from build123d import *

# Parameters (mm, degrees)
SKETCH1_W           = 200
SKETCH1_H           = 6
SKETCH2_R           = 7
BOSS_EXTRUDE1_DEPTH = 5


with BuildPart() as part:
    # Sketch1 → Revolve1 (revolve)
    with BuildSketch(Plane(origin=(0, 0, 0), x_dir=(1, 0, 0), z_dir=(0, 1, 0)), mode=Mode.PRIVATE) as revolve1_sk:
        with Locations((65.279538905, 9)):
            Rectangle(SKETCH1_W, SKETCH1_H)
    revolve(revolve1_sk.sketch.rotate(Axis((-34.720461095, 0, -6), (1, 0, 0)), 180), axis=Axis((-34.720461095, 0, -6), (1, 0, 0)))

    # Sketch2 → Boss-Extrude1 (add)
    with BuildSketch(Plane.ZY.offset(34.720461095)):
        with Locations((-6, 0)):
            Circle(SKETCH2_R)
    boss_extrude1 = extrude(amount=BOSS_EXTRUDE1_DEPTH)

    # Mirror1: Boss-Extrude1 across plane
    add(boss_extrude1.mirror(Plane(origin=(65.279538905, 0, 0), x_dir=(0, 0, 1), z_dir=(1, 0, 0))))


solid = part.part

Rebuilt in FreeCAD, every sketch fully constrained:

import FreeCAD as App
import Part
import Sketcher
from FreeCAD import Vector
Q = App.Units.Quantity

doc = App.newDocument("Part")
body = doc.addObject("PartDesign::Body", "Body")

# Sketch on XZ plane
sketch1 = doc.addObject("Sketcher::SketchObject", "Sketch")
body.addObject(sketch1)
sketch1.AttachmentSupport = (doc.XZ_Plane, [""])
sketch1.MapMode = "FlatFace"
sketch1.addGeometry(Part.LineSegment(Vector(-35, -12, 0), Vector(-35, -6, 0)), False)
sketch1.addGeometry(Part.LineSegment(Vector(-35, -6, 0), Vector(165, -6, 0)), False)
sketch1.addGeometry(Part.LineSegment(Vector(165, -6, 0), Vector(165, -12, 0)), False)
sketch1.addGeometry(Part.LineSegment(Vector(165, -12, 0), Vector(-35, -12, 0)), False)
sketch1.addGeometry(Part.LineSegment(Vector(-35, -6, 0), Vector(165, -6, 0)), True)  # axis
sketch1.addConstraint(Sketcher.Constraint("Coincident", 0, 2, 1, 1))
sketch1.addConstraint(Sketcher.Constraint("Coincident", 1, 2, 2, 1))
sketch1.addConstraint(Sketcher.Constraint("Coincident", 2, 2, 3, 1))
sketch1.addConstraint(Sketcher.Constraint("Coincident", 3, 2, 0, 1))
sketch1.addConstraint(Sketcher.Constraint("Vertical", 0))
sketch1.addConstraint(Sketcher.Constraint("Horizontal", 1))
sketch1.addConstraint(Sketcher.Constraint("Vertical", 2))
sketch1.addConstraint(Sketcher.Constraint("Horizontal", 3))
sketch1.addConstraint(Sketcher.Constraint("Horizontal", 4))
sketch1.addConstraint(Sketcher.Constraint("Coincident", 4, 1, 0, 2))
sketch1.addConstraint(Sketcher.Constraint("Vertical", 2, 2, 4, 2))
sketch1.addConstraint(Sketcher.Constraint("DistanceX", 1, 1, 1, 2, Q("200 mm")))
sketch1.addConstraint(Sketcher.Constraint("DistanceY", 0, 1, 0, 2, Q("6 mm")))
sketch1.addConstraint(Sketcher.Constraint("DistanceY", 0, 2, -1, 1, Q("6 mm")))
sketch1.addConstraint(Sketcher.Constraint("DistanceX", 0, 2, -1, 1, Q("34.720461 mm")))
revolution = doc.addObject("PartDesign::Revolution", "Revolution")
body.addObject(revolution)
revolution.Profile = sketch1
revolution.ReferenceAxis = (sketch1, ["Axis0"])
revolution.Angle = 360

# Sketch on YZ plane
sketch2 = doc.addObject("Sketcher::SketchObject", "Sketch001")
body.addObject(sketch2)
sketch2.AttachmentSupport = (doc.YZ_Plane, [""])
sketch2.MapMode = "FlatFace"
sketch2.AttachmentOffset = App.Placement(Vector(0, 0, -34.720461), App.Rotation())
sketch2.addGeometry(Part.Circle(Vector(0, -6, 0), Vector(0, 0, 1), 7), False)
sketch2.addConstraint(Sketcher.Constraint("PointOnObject", 0, 3, -2))
sketch2.addConstraint(Sketcher.Constraint("Diameter", 0, Q("14 mm")))
sketch2.addConstraint(Sketcher.Constraint("DistanceY", 0, 3, -1, 1, Q("6 mm")))
pad1 = doc.addObject("PartDesign::Pad", "Pad")
body.addObject(pad1)
pad1.Profile = sketch2
pad1.Length = 5
pad1.Reversed = True
doc.recompute()

datumplane = doc.addObject("PartDesign::Plane", "DatumPlane")
body.addObject(datumplane)
datumplane.AttachmentSupport = (doc.YZ_Plane, [""])
datumplane.MapMode = "FlatFace"
datumplane.AttachmentOffset = App.Placement(Vector(0, 0, 65.279539), App.Rotation())
mirrored = doc.addObject("PartDesign::Mirrored", "Mirrored")
body.addObject(mirrored)
mirrored.Originals = [pad1]
mirrored.MirrorPlane = (datumplane, [""])
body.Tip = mirrored

doc.recompute()
